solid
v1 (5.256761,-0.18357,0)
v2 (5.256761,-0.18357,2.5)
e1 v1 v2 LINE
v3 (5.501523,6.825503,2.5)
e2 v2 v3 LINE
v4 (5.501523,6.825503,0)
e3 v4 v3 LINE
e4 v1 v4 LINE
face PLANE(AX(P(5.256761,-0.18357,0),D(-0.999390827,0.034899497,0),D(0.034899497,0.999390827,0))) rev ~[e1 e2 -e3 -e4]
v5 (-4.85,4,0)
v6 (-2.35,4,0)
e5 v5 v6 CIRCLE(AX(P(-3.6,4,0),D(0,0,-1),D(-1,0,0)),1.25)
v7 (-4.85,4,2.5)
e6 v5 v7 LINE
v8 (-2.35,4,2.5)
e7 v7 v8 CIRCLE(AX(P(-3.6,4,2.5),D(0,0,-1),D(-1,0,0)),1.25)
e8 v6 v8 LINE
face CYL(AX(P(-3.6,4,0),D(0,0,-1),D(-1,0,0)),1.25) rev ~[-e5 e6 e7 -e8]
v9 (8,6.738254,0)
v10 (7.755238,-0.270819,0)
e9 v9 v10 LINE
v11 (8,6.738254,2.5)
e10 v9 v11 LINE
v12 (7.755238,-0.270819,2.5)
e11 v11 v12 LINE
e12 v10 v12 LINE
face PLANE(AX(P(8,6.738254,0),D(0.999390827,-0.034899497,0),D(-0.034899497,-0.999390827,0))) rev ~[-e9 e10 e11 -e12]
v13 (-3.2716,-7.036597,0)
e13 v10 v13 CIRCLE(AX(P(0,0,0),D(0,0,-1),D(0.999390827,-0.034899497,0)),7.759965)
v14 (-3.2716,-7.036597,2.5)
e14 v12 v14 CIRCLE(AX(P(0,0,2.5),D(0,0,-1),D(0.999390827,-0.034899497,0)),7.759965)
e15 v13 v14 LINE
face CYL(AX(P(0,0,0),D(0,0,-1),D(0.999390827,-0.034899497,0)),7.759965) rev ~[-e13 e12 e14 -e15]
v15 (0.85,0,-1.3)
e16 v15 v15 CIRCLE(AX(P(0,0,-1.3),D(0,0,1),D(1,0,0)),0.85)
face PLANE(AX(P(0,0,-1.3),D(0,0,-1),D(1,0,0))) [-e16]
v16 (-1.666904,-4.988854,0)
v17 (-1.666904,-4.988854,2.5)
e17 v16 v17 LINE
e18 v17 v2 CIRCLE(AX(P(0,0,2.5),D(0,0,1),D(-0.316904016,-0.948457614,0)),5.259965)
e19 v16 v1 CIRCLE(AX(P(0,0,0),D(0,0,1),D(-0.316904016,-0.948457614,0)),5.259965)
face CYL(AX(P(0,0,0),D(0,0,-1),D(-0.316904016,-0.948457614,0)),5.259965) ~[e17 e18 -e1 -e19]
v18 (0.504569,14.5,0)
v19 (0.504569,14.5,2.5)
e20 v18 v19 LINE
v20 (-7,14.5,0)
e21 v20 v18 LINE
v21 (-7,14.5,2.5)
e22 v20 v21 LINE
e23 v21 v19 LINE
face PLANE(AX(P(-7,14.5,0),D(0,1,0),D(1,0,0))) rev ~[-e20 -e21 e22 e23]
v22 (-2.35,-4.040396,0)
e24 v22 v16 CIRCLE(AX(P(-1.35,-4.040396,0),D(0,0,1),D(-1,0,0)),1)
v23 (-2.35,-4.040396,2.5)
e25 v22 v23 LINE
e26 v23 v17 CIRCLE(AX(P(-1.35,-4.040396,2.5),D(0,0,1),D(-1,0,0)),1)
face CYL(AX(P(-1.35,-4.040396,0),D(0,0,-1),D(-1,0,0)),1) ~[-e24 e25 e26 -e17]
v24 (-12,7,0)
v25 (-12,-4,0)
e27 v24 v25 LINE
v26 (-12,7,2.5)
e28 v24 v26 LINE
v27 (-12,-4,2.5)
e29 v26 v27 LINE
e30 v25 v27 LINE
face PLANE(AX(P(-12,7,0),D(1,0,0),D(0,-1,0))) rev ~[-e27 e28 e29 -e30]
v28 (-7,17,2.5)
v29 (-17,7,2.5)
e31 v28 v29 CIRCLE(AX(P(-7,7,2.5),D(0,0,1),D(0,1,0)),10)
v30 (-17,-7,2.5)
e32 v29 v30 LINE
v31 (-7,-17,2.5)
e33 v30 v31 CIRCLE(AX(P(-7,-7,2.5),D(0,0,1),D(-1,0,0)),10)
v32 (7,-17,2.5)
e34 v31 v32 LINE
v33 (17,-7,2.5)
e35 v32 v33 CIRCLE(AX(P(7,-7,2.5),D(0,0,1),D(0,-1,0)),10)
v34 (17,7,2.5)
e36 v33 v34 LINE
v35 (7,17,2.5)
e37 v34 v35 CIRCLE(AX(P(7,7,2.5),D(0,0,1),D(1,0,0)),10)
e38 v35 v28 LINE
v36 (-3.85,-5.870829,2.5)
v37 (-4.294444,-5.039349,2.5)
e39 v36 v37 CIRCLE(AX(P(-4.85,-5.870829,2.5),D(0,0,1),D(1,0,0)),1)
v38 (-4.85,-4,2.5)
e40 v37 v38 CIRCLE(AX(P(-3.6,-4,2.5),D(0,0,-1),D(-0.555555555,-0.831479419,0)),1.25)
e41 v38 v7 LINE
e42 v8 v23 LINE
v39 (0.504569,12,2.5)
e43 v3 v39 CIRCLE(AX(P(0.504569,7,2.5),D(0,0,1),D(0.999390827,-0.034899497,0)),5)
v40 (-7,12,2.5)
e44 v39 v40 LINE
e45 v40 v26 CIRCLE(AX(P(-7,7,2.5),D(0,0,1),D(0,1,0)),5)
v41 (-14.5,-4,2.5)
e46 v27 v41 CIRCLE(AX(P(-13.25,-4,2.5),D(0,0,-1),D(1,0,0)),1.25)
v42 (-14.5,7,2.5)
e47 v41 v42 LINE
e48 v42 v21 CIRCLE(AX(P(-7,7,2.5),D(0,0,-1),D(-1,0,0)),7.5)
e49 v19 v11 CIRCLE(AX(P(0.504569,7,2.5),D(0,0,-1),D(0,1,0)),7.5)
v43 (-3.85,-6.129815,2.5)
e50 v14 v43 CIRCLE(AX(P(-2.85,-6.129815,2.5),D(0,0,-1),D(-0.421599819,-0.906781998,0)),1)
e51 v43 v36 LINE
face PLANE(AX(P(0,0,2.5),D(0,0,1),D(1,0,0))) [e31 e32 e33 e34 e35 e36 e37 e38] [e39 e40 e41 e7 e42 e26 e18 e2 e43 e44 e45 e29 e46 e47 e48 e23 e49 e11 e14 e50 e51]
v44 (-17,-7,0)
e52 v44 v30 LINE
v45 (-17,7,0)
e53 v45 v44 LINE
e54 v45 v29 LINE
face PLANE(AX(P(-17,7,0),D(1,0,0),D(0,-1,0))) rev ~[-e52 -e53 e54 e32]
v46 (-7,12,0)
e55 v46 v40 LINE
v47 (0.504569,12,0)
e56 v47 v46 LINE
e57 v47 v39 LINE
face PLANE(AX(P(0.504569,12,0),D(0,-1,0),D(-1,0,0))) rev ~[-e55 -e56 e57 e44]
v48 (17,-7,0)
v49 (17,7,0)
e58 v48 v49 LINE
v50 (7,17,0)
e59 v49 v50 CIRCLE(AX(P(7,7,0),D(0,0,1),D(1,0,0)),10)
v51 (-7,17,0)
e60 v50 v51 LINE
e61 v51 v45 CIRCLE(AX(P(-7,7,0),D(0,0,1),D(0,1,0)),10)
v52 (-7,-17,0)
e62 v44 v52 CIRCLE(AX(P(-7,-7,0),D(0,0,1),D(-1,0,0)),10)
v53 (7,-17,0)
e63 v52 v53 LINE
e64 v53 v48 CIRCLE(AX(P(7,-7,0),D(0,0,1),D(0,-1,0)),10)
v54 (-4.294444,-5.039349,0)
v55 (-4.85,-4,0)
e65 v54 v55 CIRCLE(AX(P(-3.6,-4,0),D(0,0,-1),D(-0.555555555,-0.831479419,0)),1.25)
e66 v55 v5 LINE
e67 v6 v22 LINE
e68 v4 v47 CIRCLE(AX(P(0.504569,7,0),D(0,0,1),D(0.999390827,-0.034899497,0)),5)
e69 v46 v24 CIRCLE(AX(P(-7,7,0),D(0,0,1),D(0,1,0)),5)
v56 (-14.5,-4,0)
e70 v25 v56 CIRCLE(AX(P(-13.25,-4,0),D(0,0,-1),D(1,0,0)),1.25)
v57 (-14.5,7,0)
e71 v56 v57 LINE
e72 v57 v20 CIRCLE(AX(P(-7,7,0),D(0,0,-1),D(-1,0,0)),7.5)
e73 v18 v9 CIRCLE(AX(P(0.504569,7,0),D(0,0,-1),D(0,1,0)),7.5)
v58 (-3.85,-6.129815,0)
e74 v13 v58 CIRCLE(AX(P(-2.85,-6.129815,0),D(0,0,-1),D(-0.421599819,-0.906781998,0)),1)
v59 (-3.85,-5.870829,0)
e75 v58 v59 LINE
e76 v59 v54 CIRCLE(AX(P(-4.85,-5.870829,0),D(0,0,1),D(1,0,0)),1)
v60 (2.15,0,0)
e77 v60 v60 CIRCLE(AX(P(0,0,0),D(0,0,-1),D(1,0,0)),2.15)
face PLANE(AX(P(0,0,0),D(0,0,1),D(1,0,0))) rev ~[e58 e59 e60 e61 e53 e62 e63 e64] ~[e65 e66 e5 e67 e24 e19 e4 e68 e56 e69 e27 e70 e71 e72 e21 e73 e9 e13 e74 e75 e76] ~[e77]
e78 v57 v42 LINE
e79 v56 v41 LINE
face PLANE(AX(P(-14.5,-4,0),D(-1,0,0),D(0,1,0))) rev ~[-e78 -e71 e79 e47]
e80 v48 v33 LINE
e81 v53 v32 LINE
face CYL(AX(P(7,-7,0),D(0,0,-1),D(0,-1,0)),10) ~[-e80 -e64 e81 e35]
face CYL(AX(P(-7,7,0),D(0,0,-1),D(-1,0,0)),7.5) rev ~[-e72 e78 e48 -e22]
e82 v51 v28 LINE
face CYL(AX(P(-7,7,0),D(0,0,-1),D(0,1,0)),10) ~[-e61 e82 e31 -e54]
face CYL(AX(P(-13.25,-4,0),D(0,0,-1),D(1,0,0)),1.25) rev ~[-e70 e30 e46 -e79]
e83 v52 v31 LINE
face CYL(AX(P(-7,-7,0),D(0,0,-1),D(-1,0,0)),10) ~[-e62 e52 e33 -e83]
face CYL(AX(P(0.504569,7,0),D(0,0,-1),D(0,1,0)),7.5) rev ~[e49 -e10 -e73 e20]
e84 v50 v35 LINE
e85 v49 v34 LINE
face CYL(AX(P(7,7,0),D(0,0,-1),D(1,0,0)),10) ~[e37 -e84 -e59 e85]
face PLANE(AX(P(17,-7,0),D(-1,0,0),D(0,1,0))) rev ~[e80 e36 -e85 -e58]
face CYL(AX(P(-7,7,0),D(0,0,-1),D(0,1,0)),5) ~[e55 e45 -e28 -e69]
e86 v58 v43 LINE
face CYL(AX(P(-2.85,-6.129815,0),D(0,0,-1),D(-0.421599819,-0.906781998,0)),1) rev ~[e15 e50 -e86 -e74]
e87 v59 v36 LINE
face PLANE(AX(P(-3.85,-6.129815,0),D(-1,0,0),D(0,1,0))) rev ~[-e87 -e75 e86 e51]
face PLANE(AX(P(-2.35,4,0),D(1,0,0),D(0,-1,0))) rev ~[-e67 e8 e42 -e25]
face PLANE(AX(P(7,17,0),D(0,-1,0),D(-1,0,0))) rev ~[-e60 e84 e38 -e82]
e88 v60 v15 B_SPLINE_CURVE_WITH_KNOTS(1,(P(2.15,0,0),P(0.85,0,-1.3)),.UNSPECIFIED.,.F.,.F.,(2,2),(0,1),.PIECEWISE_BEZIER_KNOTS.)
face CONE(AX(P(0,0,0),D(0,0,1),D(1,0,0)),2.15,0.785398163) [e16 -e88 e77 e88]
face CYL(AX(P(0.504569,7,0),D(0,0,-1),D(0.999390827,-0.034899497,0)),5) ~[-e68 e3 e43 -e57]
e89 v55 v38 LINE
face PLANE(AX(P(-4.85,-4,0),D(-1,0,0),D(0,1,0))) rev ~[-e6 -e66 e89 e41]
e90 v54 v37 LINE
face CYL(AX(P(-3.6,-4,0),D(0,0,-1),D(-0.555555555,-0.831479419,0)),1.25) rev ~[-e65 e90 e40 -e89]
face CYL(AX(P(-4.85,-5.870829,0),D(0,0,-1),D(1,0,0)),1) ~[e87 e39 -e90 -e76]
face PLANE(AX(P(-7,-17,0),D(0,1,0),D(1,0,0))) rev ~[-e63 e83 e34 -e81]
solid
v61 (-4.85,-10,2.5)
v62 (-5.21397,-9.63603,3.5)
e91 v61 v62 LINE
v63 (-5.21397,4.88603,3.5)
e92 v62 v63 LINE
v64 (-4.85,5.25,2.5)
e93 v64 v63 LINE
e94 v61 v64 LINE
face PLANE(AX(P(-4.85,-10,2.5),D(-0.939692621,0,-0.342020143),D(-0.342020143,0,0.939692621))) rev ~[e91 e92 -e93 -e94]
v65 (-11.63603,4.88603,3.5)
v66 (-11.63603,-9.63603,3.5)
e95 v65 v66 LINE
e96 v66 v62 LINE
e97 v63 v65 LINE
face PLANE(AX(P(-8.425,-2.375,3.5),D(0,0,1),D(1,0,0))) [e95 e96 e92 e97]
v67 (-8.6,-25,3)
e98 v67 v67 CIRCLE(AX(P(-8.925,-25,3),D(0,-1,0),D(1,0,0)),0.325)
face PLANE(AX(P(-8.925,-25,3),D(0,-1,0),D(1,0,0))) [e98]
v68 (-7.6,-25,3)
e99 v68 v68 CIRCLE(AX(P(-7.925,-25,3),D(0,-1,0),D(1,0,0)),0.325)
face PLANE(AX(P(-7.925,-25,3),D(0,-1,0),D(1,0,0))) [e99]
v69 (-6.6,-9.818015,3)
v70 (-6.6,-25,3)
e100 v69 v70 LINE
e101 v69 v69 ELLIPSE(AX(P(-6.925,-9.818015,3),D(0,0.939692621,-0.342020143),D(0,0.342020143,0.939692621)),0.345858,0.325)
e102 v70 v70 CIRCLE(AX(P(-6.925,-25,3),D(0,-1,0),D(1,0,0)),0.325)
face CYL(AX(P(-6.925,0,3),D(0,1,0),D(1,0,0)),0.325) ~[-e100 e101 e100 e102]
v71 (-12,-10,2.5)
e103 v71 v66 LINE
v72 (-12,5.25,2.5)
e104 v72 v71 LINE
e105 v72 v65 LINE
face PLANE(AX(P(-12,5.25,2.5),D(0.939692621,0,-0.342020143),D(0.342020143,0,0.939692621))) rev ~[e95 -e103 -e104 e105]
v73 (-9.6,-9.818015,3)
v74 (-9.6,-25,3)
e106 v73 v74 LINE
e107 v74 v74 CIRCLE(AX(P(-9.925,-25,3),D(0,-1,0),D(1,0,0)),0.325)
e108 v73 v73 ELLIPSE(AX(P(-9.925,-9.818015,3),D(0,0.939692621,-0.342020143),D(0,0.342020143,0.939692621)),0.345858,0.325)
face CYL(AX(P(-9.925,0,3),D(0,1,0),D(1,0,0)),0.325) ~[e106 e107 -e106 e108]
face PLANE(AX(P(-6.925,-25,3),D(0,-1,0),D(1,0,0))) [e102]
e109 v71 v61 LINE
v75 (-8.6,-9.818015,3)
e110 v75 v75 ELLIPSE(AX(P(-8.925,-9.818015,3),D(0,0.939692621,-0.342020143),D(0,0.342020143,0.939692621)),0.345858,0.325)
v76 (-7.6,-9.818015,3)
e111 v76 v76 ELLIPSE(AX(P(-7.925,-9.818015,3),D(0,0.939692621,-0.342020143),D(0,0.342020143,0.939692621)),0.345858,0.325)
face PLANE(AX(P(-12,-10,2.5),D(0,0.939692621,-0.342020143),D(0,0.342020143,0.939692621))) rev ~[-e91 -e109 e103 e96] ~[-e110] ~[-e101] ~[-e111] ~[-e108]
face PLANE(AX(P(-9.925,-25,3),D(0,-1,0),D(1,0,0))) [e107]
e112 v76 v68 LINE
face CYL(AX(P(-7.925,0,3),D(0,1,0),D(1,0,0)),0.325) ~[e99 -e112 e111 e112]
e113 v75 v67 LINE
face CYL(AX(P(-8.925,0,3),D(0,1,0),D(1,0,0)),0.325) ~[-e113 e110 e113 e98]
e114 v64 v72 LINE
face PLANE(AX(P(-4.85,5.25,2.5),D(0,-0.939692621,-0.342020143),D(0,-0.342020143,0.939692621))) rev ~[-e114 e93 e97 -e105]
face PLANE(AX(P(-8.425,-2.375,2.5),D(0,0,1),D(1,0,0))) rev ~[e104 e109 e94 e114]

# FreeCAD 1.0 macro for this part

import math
import FreeCAD as App
import Part
import Sketcher
Q = App.Units.Quantity

doc = App.newDocument("Part")
params = doc.addObject("Spreadsheet::Sheet", "Params")
for row, (alias, value) in enumerate([
    ("sketch1_radius", "10 mm"),
    ("sketch1_radius2", "1 mm"),
    ("sketch1_radius3", "5 mm"),
    ("sketch1_radius4", "7.5 mm"),
    ("sketch1_width", "14 mm"),
    ("pad1_length", "2.5 mm"),
    ("sketch2_diameter", "4.3 mm"),
    ("pad2_length", "1.3 mm"),
    ("pad2_taper", "-45 deg"),
    ("sketch3_width", "7.15 mm"),
    ("sketch3_height", "15.25 mm"),
    ("pad3_length", "1 mm"),
    ("pad3_taper", "-20 deg"),
    ("sketch4_diameter", "0.65 mm"),
    ("pad4_length", "25 mm"),
], start=1):
    params.set(f"A{row}", alias)
    params.set(f"B{row}", "=" + value)
    params.setAlias(f"B{row}", alias)

body = doc.addObject("PartDesign::Body", "Body")

sketch1 = body.newObject("Sketcher::SketchObject", "Sketch")
sketch1.AttachmentSupport = (doc.getObject("XY_Plane"), [""])
sketch1.MapMode = "FlatFace"
sketch1.addGeometry([
    Part.LineSegment(App.Vector(-7, -17, 0), App.Vector(7, -17, 0)),
    Part.ArcOfCircle(Part.Circle(App.Vector(7, -7, 0), App.Vector(0, 0, 1), 10), math.radians(-90), math.radians(0)),
    Part.LineSegment(App.Vector(17, -7, 0), App.Vector(17, 7, 0)),
    Part.ArcOfCircle(Part.Circle(App.Vector(7, 7, 0), App.Vector(0, 0, 1), 10), math.radians(0), math.radians(90)),
    Part.LineSegment(App.Vector(7, 17, 0), App.Vector(-7, 17, 0)),
    Part.ArcOfCircle(Part.Circle(App.Vector(-7, 7, 0), App.Vector(0, 0, 1), 10), math.radians(90), math.radians(180)),
    Part.LineSegment(App.Vector(-17, 7, 0), App.Vector(-17, -7, 0)),
    Part.ArcOfCircle(Part.Circle(App.Vector(-7, -7, 0), App.Vector(0, 0, 1), 10), math.radians(180), math.radians(270)),
    Part.ArcOfCircle(Part.Circle(App.Vector(-7, 7, 0), App.Vector(0, 0, 1), 7.5), math.radians(90), math.radians(180)),
    Part.LineSegment(App.Vector(-7, 14.5, 0), App.Vector(0.5, 14.5, 0)),
    Part.ArcOfCircle(Part.Circle(App.Vector(0.5, 7, 0), App.Vector(0, 0, 1), 7.5), math.radians(-2), math.radians(90)),
    Part.LineSegment(App.Vector(8, 6.74, 0), App.Vector(7.76, -0.27, 0)),
    Part.ArcOfCircle(Part.Circle(App.Vector(0, 0, 0), App.Vector(0, 0, 1), 7.76), math.radians(-115), math.radians(-2)),
    Part.ArcOfCircle(Part.Circle(App.Vector(-2.85, -6.13, 0), App.Vector(0, 0, 1), 1), math.radians(180), math.radians(245)),
    Part.LineSegment(App.Vector(-3.85, -6.13, 0), App.Vector(-3.85, -5.87, 0)),
    Part.ArcOfCircle(Part.Circle(App.Vector(-4.85, -5.87, 0), App.Vector(0, 0, 1), 1), math.radians(0), math.radians(56)),
    Part.ArcOfCircle(Part.Circle(App.Vector(-3.6, -4, 0), App.Vector(0, 0, 1), 1.25), math.radians(180), math.radians(236)),
    Part.LineSegment(App.Vector(-4.85, -4, 0), App.Vector(-4.85, 4, 0)),
    Part.ArcOfCircle(Part.Circle(App.Vector(-3.6, 4, 0), App.Vector(0, 0, 1), 1.25), math.radians(0), math.radians(180)),
    Part.LineSegment(App.Vector(-2.35, 4, 0), App.Vector(-2.35, -4.04, 0)),
    Part.ArcOfCircle(Part.Circle(App.Vector(-1.35, -4.04, 0), App.Vector(0, 0, 1), 1), math.radians(180), math.radians(252)),
    Part.ArcOfCircle(Part.Circle(App.Vector(0, 0, 0), App.Vector(0, 0, 1), 5.26), math.radians(-108), math.radians(-2)),
    Part.LineSegment(App.Vector(5.26, -0.18, 0), App.Vector(5.5, 6.83, 0)),
    Part.ArcOfCircle(Part.Circle(App.Vector(0.5, 7, 0), App.Vector(0, 0, 1), 5), math.radians(-2), math.radians(90)),
    Part.LineSegment(App.Vector(0.5, 12, 0), App.Vector(-7, 12, 0)),
    Part.ArcOfCircle(Part.Circle(App.Vector(-7, 7, 0), App.Vector(0, 0, 1), 5), math.radians(90), math.radians(180)),
    Part.LineSegment(App.Vector(-12, 7, 0), App.Vector(-12, -4, 0)),
    Part.ArcOfCircle(Part.Circle(App.Vector(-13.25, -4, 0), App.Vector(0, 0, 1), 1.25), math.radians(180), math.radians(360)),
    Part.LineSegment(App.Vector(-14.5, -4, 0), App.Vector(-14.5, 7, 0)),
], False)
sketch1.addConstraint([
    Sketcher.Constraint("Tangent", 0, 2, 1, 1),
    Sketcher.Constraint("Tangent", 1, 2, 2, 1),
    Sketcher.Constraint("Tangent", 2, 2, 3, 1),
    Sketcher.Constraint("Tangent", 3, 2, 4, 1),
    Sketcher.Constraint("Tangent", 4, 2, 5, 1),
    Sketcher.Constraint("Tangent", 5, 2, 6, 1),
    Sketcher.Constraint("Tangent", 6, 2, 7, 1),
    Sketcher.Constraint("Tangent", 7, 2, 0, 1),
    Sketcher.Constraint("Tangent", 8, 1, 9, 1),
    Sketcher.Constraint("Tangent", 9, 2, 10, 2),
    Sketcher.Constraint("Tangent", 10, 1, 11, 1),
    Sketcher.Constraint("Tangent", 11, 2, 12, 2),
    Sketcher.Constraint("Tangent", 12, 1, 13, 2),
    Sketcher.Constraint("Tangent", 13, 1, 14, 1),
    Sketcher.Constraint("Tangent", 14, 2, 15, 1),
    Sketcher.Constraint("Tangent", 15, 2, 16, 2),
    Sketcher.Constraint("Tangent", 16, 1, 17, 1),
    Sketcher.Constraint("Tangent", 17, 2, 18, 2),
    Sketcher.Constraint("Tangent", 18, 1, 19, 1),
    Sketcher.Constraint("Tangent", 19, 2, 20, 1),
    Sketcher.Constraint("Tangent", 20, 2, 21, 1),
    Sketcher.Constraint("Tangent", 21, 2, 22, 1),
    Sketcher.Constraint("Tangent", 22, 2, 23, 1),
    Sketcher.Constraint("Tangent", 23, 2, 24, 1),
    Sketcher.Constraint("Tangent", 24, 2, 25, 1),
    Sketcher.Constraint("Tangent", 25, 2, 26, 1),
    Sketcher.Constraint("Tangent", 26, 2, 27, 2),
    Sketcher.Constraint("Tangent", 27, 1, 28, 1),
    Sketcher.Constraint("Tangent", 28, 2, 8, 2),
    Sketcher.Constraint("Horizontal", 0),
    Sketcher.Constraint("Vertical", 2),
    Sketcher.Constraint("Horizontal", 4),
    Sketcher.Constraint("Vertical", 6),
    Sketcher.Constraint("Horizontal", 9),
    Sketcher.Constraint("Vertical", 14),
    Sketcher.Constraint("Vertical", 17),
    Sketcher.Constraint("Vertical", 19),
    Sketcher.Constraint("Horizontal", 24),
    Sketcher.Constraint("Vertical", 26),
    Sketcher.Constraint("Vertical", 28),
    Sketcher.Constraint("Coincident", 12, 3, -1, 1),
    Sketcher.Constraint("Coincident", 21, 3, -1, 1),
    Sketcher.Constraint("Coincident", 8, 3, 5, 3),
    Sketcher.Constraint("Coincident", 23, 3, 10, 3),
    Sketcher.Constraint("Coincident", 25, 3, 5, 3),
    Sketcher.Constraint("Equal", 1, 3),
    Sketcher.Constraint("Equal", 3, 5),
    Sketcher.Constraint("Equal", 5, 7),
    Sketcher.Constraint("Equal", 8, 10),
    Sketcher.Constraint("Equal", 13, 15),
    Sketcher.Constraint("Equal", 16, 18),
    Sketcher.Constraint("Equal", 15, 20),
    Sketcher.Constraint("Equal", 18, 27),
    Sketcher.Constraint("Symmetric", 1, 3, 5, 3, -1, 1),
    Sketcher.Constraint("Parallel", 11, 22),
    Sketcher.Constraint("Horizontal", 16, 3, 27, 3),
    Sketcher.Constraint("Vertical", 15, 3, 16, 1),
    Sketcher.Constraint("Equal", 4, 2),
    Sketcher.Constraint("Radius", 1, Q("10 mm")),
    Sketcher.Constraint("Radius", 13, Q("1 mm")),
    Sketcher.Constraint("Radius", 23, Q("5 mm")),
    Sketcher.Constraint("Radius", 8, Q("7.5 mm")),
    Sketcher.Constraint("DistanceX", 0, 1, 0, 2, Q("14 mm")),
    Sketcher.Constraint("DistanceY", 17, 1, 17, 2, Q("8 mm")),
    Sketcher.Constraint("DistanceY", 26, 2, 26, 1, Q("11 mm")),
    Sketcher.Constraint("Angle", 11, Q("-92 deg")),
    Sketcher.Constraint("DistanceX", -1, 1, 10, 1, Q("8 mm")),
    Sketcher.Constraint("DistanceX", 16, 3, -1, 1, Q("3.6 mm")),
])
sketch1.setExpression("Constraints[58]", "Params.sketch1_radius")
sketch1.setExpression("Constraints[59]", "Params.sketch1_radius2")
sketch1.setExpression("Constraints[60]", "Params.sketch1_radius3")
sketch1.setExpression("Constraints[61]", "Params.sketch1_radius4")
sketch1.setExpression("Constraints[62]", "Params.sketch1_width")
pad1 = body.newObject("PartDesign::Pad", "Pad")
pad1.Profile = sketch1
pad1.setExpression("Length", "Params.pad1_length")

sketch2 = body.newObject("Sketcher::SketchObject", "Sketch001")
sketch2.AttachmentSupport = (doc.getObject("XY_Plane"), [""])
sketch2.MapMode = "FlatFace"
sketch2.addGeometry(Part.Circle(App.Vector(0, 0, 0), App.Vector(0, 0, 1), 2.1), False)
sketch2.addConstraint([
    Sketcher.Constraint("Coincident", 0, 3, -1, 1),
    Sketcher.Constraint("Diameter", 0, Q("4.3 mm")),
])
sketch2.setExpression("Constraints[1]", "Params.sketch2_diameter")
pad2 = body.newObject("PartDesign::Pad", "Pad001")
pad2.Profile = sketch2
pad2.setExpression("Length", "Params.pad2_length")
pad2.Reversed = True
pad2.setExpression("TaperAngle", "Params.pad2_taper")
body2 = doc.addObject("PartDesign::Body", "Body001")

sketch3 = body2.newObject("Sketcher::SketchObject", "Sketch002")
sketch3.AttachmentSupport = (doc.getObject("XY_Plane001"), [""])
sketch3.MapMode = "FlatFace"
sketch3.AttachmentOffset = App.Placement(App.Vector(0, 0, 2.5), App.Rotation())
sketch3.addGeometry([
    Part.LineSegment(App.Vector(-12, 5, 0), App.Vector(-12, -10, 0)),
    Part.LineSegment(App.Vector(-12, -10, 0), App.Vector(-5, -10, 0)),
    Part.LineSegment(App.Vector(-5, -10, 0), App.Vector(-5, 5, 0)),
    Part.LineSegment(App.Vector(-5, 5, 0), App.Vector(-12, 5, 0)),
], False)
sketch3.addConstraint([
    Sketcher.Constraint("Coincident", 0, 2, 1, 1),
    Sketcher.Constraint("Coincident", 1, 2, 2, 1),
    Sketcher.Constraint("Coincident", 2, 2, 3, 1),
    Sketcher.Constraint("Coincident", 3, 2, 0, 1),
    Sketcher.Constraint("Vertical", 0),
    Sketcher.Constraint("Horizontal", 1),
    Sketcher.Constraint("Vertical", 2),
    Sketcher.Constraint("Horizontal", 3),
    Sketcher.Constraint("DistanceX", 0, 2, -1, 1, Q("12 mm")),
    Sketcher.Constraint("DistanceY", 0, 2, -1, 1, Q("10 mm")),
    Sketcher.Constraint("DistanceX", 1, 1, 1, 2, Q("7.15 mm")),
    Sketcher.Constraint("DistanceY", 0, 2, 0, 1, Q("15.25 mm")),
])
sketch3.setExpression("Constraints[10]", "Params.sketch3_width")
sketch3.setExpression("Constraints[11]", "Params.sketch3_height")
pad3 = body2.newObject("PartDesign::Pad", "Pad002")
pad3.Profile = sketch3
pad3.setExpression("Length", "Params.pad3_length")
pad3.setExpression("TaperAngle", "Params.pad3_taper")

sketch4 = body2.newObject("Sketcher::SketchObject", "Sketch003")
sketch4.AttachmentSupport = (doc.getObject("XZ_Plane001"), [""])
sketch4.MapMode = "FlatFace"
sketch4.addGeometry([
    Part.Circle(App.Vector(-9.93, 3, 0), App.Vector(0, 0, 1), 0.33),
    Part.Circle(App.Vector(-8.93, 3, 0), App.Vector(0, 0, 1), 0.33),
    Part.Circle(App.Vector(-7.92, 3, 0), App.Vector(0, 0, 1), 0.33),
    Part.Circle(App.Vector(-6.92, 3, 0), App.Vector(0, 0, 1), 0.33),
], False)
sketch4.addConstraint([
    Sketcher.Constraint("Equal", 0, 1),
    Sketcher.Constraint("Equal", 1, 2),
    Sketcher.Constraint("Equal", 2, 3),
    Sketcher.Constraint("Horizontal", 0, 3, 1, 3),
    Sketcher.Constraint("Horizontal", 1, 3, 2, 3),
    Sketcher.Constraint("Horizontal", 2, 3, 3, 3),
    Sketcher.Constraint("Diameter", 0, Q("0.65 mm")),
    Sketcher.Constraint("DistanceY", -1, 1, 0, 3, Q("3 mm")),
    Sketcher.Constraint("DistanceX", 0, 3, 1, 3, Q("1 mm")),
    Sketcher.Constraint("DistanceX", 1, 3, 2, 3, Q("1 mm")),
    Sketcher.Constraint("DistanceX", 2, 3, 3, 3, Q("1 mm")),
    Sketcher.Constraint("DistanceX", 0, 3, -1, 1, Q("9.925 mm")),
])
sketch4.setExpression("Constraints[6]", "Params.sketch4_diameter")
pad4 = body2.newObject("PartDesign::Pad", "Pad003")
pad4.Profile = sketch4
pad4.setExpression("Length", "Params.pad4_length")

doc.recompute()
